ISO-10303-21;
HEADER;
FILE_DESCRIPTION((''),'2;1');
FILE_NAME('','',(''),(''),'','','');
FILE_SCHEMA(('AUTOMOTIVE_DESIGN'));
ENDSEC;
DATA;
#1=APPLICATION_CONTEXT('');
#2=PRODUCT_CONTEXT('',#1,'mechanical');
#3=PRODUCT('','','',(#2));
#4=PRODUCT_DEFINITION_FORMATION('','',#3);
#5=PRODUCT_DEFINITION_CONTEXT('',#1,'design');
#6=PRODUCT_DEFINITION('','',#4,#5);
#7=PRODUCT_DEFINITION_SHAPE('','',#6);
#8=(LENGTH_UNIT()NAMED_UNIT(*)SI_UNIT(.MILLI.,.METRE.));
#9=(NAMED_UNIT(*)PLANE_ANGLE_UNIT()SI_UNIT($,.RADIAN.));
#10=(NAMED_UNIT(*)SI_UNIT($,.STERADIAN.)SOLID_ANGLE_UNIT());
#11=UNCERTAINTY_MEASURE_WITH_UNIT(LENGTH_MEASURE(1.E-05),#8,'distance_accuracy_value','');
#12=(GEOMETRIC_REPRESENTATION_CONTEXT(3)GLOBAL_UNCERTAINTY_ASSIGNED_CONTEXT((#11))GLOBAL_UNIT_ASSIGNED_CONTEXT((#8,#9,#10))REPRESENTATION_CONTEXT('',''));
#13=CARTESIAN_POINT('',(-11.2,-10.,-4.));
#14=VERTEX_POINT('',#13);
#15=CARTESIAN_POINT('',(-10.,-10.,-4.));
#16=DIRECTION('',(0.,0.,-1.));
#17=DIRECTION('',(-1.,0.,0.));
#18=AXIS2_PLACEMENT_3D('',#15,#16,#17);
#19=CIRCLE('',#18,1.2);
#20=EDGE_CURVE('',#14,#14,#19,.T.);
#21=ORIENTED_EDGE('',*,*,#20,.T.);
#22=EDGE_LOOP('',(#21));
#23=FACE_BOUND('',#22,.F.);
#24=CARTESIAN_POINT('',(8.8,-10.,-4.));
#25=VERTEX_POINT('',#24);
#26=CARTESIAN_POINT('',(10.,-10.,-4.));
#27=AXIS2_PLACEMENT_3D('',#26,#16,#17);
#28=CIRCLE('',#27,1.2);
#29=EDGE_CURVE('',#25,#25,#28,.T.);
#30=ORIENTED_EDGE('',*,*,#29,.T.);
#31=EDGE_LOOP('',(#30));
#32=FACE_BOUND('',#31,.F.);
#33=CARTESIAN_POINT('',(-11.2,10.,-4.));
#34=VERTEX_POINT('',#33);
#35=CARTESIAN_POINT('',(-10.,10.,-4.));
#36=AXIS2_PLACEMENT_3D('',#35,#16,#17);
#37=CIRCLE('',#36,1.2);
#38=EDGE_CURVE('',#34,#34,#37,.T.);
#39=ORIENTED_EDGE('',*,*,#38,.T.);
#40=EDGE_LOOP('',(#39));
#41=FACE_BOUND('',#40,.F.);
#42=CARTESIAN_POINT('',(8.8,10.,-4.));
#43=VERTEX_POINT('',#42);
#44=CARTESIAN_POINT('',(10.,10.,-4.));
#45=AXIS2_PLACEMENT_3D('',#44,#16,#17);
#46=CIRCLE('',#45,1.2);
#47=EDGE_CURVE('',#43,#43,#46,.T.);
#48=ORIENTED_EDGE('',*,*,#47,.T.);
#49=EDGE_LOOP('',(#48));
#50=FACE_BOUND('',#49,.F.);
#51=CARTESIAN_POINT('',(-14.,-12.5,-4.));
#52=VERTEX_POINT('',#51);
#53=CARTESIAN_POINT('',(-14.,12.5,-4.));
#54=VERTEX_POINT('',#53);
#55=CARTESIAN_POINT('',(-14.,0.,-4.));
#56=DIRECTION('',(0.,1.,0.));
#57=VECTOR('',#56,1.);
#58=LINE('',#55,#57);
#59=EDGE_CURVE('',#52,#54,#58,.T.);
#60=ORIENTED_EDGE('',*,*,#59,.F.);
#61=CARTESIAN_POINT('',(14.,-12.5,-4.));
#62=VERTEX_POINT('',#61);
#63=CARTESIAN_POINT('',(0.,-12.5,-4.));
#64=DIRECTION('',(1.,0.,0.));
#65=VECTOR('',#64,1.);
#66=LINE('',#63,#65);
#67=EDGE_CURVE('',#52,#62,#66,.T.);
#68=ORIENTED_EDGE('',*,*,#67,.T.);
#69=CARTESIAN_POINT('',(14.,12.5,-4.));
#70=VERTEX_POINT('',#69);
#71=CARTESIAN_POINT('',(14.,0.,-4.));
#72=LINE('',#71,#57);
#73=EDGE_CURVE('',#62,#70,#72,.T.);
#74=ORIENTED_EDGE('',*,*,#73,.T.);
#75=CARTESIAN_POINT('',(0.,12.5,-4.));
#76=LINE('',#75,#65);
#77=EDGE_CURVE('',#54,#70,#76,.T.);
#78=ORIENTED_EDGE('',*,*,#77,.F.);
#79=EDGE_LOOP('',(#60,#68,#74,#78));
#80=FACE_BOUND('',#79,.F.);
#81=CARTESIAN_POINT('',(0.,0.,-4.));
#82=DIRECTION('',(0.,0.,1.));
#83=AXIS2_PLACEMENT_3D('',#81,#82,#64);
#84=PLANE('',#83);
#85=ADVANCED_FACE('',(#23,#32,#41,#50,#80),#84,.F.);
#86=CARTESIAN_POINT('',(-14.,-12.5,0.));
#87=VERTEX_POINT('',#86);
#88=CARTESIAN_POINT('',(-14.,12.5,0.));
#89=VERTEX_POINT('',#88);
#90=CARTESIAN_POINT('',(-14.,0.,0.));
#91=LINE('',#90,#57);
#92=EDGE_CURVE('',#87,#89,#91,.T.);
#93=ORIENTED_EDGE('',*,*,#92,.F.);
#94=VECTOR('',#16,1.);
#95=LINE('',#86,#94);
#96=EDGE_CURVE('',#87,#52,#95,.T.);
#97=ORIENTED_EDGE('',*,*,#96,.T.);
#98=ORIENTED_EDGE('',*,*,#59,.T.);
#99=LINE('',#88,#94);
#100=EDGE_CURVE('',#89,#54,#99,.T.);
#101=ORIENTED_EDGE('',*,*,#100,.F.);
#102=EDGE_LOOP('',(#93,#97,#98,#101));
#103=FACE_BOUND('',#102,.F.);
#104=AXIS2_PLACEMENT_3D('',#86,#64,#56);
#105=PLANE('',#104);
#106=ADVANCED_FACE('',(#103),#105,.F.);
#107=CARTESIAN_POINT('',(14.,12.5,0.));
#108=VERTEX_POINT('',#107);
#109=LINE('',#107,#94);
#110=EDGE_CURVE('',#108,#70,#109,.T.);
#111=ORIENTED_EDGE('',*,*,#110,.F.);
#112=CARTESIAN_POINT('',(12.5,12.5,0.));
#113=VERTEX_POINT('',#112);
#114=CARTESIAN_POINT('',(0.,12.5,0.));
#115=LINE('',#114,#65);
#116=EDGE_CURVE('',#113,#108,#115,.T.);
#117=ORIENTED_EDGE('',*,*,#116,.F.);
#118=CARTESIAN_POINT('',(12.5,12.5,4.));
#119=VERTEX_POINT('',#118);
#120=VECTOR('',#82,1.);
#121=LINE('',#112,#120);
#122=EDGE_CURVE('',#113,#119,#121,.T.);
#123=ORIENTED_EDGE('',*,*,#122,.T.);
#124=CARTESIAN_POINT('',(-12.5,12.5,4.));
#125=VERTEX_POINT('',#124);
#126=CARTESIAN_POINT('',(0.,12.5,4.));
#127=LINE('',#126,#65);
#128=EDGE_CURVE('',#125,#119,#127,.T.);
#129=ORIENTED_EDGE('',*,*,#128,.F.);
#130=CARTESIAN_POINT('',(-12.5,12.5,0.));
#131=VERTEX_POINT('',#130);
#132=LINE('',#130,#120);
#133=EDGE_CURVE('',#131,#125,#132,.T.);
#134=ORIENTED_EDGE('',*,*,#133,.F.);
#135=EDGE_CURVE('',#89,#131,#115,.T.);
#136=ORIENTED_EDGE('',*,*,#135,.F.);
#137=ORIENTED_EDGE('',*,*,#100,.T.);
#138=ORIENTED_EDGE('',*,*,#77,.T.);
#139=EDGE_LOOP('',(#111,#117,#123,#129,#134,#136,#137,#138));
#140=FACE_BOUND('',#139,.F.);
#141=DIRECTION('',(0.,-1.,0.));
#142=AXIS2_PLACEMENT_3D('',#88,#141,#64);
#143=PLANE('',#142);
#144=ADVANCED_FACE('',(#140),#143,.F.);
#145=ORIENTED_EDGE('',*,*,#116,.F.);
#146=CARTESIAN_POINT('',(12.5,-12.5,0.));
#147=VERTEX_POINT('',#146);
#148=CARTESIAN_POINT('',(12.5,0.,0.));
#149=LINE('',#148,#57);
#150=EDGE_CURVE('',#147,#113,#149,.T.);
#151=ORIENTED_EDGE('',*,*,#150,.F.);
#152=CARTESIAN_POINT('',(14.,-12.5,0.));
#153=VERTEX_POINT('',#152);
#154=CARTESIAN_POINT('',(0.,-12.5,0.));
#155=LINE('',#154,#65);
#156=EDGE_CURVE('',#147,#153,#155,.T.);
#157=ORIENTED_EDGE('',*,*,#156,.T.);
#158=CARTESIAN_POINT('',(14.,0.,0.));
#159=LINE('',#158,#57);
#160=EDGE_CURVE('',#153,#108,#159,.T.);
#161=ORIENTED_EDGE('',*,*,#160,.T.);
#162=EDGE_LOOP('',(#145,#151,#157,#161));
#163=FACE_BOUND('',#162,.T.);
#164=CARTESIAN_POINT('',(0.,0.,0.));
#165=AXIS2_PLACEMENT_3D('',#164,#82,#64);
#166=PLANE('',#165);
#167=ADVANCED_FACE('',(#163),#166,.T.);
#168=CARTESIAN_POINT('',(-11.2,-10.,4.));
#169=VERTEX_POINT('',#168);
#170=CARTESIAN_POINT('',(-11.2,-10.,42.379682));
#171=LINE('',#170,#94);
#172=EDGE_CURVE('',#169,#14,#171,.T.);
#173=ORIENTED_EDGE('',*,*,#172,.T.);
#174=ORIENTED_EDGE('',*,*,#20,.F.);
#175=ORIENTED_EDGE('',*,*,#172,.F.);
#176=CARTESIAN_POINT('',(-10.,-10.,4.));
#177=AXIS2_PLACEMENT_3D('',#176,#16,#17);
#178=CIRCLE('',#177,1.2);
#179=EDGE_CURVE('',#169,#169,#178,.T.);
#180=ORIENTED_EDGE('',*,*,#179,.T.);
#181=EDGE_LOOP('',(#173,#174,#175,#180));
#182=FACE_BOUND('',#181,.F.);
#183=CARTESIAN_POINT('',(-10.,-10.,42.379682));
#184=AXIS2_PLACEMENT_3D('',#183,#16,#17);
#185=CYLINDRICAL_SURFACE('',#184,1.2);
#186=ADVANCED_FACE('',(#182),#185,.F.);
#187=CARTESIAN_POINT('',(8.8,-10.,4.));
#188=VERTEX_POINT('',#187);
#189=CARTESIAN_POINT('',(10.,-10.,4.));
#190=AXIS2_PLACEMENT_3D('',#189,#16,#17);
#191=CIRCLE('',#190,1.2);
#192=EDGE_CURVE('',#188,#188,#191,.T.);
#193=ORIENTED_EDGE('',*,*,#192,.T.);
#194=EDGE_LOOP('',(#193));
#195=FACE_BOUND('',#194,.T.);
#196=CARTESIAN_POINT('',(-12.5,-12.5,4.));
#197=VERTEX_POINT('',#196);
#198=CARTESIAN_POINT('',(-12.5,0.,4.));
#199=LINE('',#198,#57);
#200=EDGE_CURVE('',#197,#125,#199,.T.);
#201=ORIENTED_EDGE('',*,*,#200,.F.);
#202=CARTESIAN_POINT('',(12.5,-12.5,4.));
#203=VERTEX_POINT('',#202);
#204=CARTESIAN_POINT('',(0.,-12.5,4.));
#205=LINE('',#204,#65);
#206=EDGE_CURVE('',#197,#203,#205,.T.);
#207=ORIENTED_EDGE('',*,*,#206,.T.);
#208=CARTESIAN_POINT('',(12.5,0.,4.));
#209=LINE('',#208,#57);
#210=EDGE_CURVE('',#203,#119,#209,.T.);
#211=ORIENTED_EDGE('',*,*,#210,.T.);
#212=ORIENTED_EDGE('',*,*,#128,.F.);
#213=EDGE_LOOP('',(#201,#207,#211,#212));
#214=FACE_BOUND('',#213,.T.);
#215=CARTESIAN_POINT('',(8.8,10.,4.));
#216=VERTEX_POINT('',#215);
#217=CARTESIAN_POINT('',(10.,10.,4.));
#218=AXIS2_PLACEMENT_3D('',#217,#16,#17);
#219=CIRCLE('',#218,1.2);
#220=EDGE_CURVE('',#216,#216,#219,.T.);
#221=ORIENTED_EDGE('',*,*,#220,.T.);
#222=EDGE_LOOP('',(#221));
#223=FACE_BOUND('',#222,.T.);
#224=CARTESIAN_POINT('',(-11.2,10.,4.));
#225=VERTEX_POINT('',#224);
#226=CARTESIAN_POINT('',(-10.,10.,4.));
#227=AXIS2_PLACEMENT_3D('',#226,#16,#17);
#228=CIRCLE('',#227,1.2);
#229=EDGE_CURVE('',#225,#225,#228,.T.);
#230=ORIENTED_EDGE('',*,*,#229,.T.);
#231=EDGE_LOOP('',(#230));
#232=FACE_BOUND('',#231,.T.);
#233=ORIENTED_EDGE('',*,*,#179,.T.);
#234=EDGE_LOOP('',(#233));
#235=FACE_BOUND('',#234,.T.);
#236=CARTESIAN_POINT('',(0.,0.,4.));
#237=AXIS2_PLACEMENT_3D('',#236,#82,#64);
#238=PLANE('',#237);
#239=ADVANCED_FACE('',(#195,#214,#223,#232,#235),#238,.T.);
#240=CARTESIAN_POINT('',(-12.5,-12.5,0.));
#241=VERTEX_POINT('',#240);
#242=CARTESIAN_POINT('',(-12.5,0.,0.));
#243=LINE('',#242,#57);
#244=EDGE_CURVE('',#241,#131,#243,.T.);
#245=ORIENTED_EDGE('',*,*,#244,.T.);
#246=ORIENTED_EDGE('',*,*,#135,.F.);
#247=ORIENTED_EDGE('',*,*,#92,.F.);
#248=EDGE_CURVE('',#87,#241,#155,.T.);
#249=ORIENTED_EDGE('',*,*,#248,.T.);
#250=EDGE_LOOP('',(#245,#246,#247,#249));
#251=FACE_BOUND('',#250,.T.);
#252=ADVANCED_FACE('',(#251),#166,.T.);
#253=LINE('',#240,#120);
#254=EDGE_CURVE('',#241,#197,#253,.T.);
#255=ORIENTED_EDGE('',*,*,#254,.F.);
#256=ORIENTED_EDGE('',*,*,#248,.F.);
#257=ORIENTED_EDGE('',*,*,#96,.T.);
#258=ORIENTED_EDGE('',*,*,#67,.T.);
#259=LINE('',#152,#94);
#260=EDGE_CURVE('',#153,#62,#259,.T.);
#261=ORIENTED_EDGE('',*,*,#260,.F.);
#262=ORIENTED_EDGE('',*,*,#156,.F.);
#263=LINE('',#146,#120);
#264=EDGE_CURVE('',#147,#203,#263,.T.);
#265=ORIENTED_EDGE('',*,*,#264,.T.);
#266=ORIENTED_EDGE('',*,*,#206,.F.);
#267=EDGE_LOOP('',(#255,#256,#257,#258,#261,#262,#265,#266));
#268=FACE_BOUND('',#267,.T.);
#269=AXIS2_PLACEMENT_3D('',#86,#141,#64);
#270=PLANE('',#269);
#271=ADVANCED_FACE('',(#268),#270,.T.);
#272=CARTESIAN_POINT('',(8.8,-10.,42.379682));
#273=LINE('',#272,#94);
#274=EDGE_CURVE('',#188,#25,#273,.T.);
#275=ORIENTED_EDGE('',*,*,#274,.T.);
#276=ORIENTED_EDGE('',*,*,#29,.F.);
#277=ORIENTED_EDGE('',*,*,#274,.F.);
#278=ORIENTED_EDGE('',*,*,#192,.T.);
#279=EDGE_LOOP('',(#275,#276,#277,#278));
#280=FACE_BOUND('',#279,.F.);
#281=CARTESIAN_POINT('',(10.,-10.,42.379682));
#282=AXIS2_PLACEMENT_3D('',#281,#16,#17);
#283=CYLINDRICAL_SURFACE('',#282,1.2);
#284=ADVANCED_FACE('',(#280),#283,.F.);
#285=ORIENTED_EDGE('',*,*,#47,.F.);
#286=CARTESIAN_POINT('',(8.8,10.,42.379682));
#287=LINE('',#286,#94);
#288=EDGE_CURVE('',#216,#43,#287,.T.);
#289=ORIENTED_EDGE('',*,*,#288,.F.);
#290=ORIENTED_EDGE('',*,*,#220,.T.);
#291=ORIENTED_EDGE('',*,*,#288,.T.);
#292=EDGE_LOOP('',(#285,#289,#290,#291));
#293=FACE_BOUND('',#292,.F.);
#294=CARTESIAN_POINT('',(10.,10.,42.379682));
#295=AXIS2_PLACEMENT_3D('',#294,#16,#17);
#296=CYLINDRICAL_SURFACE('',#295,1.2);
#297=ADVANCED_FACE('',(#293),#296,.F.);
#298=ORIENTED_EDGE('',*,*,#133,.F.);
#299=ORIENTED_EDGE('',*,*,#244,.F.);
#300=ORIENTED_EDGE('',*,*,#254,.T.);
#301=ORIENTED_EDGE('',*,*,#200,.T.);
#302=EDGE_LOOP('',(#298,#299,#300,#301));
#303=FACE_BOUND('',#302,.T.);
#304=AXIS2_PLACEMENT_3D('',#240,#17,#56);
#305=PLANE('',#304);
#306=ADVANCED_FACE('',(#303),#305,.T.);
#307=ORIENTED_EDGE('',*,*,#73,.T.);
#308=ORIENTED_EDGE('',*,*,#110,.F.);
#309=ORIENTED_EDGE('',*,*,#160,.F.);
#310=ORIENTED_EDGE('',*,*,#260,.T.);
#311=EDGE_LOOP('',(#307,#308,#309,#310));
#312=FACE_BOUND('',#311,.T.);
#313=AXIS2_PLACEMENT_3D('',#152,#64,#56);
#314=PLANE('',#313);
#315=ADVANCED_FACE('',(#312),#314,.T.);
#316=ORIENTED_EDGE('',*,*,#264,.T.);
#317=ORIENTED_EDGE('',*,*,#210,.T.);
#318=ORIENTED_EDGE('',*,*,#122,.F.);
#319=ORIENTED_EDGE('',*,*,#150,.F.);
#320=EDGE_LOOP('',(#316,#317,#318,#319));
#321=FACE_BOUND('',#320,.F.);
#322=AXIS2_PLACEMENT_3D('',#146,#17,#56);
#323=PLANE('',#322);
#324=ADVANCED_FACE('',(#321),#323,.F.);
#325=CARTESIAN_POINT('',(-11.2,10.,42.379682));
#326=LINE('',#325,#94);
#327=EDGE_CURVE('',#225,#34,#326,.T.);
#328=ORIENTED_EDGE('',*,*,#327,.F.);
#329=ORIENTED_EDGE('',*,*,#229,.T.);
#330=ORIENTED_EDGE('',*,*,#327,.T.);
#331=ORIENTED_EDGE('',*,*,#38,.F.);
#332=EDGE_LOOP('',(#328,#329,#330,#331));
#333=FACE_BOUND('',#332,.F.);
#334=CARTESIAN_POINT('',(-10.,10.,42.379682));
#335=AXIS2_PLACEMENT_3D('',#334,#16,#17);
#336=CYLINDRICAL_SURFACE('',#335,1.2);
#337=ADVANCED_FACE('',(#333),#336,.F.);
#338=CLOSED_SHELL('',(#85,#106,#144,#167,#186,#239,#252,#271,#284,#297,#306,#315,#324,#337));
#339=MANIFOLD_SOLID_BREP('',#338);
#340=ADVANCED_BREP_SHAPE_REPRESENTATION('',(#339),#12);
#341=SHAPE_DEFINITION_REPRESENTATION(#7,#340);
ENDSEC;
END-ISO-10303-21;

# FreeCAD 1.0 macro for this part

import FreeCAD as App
import Part
import Sketcher
from FreeCAD import Vector


def add_polygon(sketch, points):
    """Adds a closed chain of lines whose ends are joined by coincident constraints."""
    first, n = sketch.GeometryCount, len(points)
    for a, b in zip(points, points[1:] + points[:1]):
        sketch.addGeometry(Part.LineSegment(App.Vector(*a, 0), App.Vector(*b, 0)), False)
    for i in range(n):
        sketch.addConstraint(Sketcher.Constraint("Coincident", first + i, 2, first + (i + 1) % n, 1))

doc = App.newDocument("Part")
body = doc.addObject("PartDesign::Body", "Body")

# Sketch on XY plane
sketch1 = body.newObject("Sketcher::SketchObject", "Sketch")
sketch1.AttachmentSupport = (doc.getObject("XY_Plane"), [""])
sketch1.MapMode = "FlatFace"
add_polygon(sketch1, [(-14, 12), (-14, -12), (14, -12), (14, 12)])  # lines 0-3
sketch1.addConstraint([
    Sketcher.Constraint("Vertical", 0),
    Sketcher.Constraint("Horizontal", 1),
    Sketcher.Constraint("Vertical", 2),
    Sketcher.Constraint("Horizontal", 3),
    Sketcher.Constraint("Symmetric", 0, 2, 2, 2, -1, 1),
    Sketcher.Constraint("DistanceX", 1, 1, 1, 2, 28.0),
    Sketcher.Constraint("DistanceY", 0, 2, 0, 1, 25.0),
])
pad1 = body.newObject("PartDesign::Pad", "Pad")
pad1.Profile = sketch1
pad1.Length = 4
pad1.Reversed = True

# Sketch on XY plane
sketch2 = body.newObject("Sketcher::SketchObject", "Sketch001")
sketch2.AttachmentSupport = (doc.getObject("XY_Plane"), [""])
sketch2.MapMode = "FlatFace"
add_polygon(sketch2, [(-12, 12), (-12, -12), (12, -12), (12, 12)])  # lines 0-3
sketch2.addConstraint([
    Sketcher.Constraint("Vertical", 0),
    Sketcher.Constraint("Horizontal", 1),
    Sketcher.Constraint("Vertical", 2),
    Sketcher.Constraint("Horizontal", 3),
    Sketcher.Constraint("Symmetric", 0, 2, 2, 2, -1, 1),
    Sketcher.Constraint("Equal", 3, 0),
    Sketcher.Constraint("DistanceX", 1, 1, 1, 2, 25.0),
])
pad2 = body.newObject("PartDesign::Pad", "Pad001")
pad2.Profile = sketch2
pad2.Length = 4

# Sketch on XY plane
sketch3 = body.newObject("Sketcher::SketchObject", "Sketch002")
sketch3.AttachmentSupport = (doc.getObject("XY_Plane"), [""])
sketch3.MapMode = "FlatFace"
sketch3.AttachmentOffset = App.Placement(Vector(0, 0, 4), App.Rotation())
sketch3.addGeometry([
    Part.Circle(Vector(-10, 10, 0), Vector(0, 0, 1), 1.2),
    Part.Circle(Vector(10, 10, 0), Vector(0, 0, 1), 1.2),
    Part.Circle(Vector(10, -10, 0), Vector(0, 0, 1), 1.2),
    Part.Circle(Vector(-10, -10, 0), Vector(0, 0, 1), 1.2),
], False)
sketch3.addConstraint([
    Sketcher.Constraint("Equal", 0, 1),
    Sketcher.Constraint("Equal", 1, 2),
    Sketcher.Constraint("Equal", 2, 3),
    Sketcher.Constraint("Symmetric", 0, 3, 2, 3, -1, 1),
    Sketcher.Constraint("Symmetric", 1, 3, 3, 3, -1, 1),
    Sketcher.Constraint("Symmetric", 0, 3, 1, 3, -2),
    Sketcher.Constraint("Diameter", 0, 2.4),
    Sketcher.Constraint("DistanceX", 0, 3, -1, 1, 10.0),
    Sketcher.Constraint("DistanceY", -1, 1, 0, 3, 10.0),
])
doc.recompute()
hole = body.newObject("PartDesign::Hole", "Hole")
hole.Profile = sketch3
hole.ThreadType = "None"
hole.Diameter = 2.4
hole.DepthType = "ThroughAll"

doc.recompute()
